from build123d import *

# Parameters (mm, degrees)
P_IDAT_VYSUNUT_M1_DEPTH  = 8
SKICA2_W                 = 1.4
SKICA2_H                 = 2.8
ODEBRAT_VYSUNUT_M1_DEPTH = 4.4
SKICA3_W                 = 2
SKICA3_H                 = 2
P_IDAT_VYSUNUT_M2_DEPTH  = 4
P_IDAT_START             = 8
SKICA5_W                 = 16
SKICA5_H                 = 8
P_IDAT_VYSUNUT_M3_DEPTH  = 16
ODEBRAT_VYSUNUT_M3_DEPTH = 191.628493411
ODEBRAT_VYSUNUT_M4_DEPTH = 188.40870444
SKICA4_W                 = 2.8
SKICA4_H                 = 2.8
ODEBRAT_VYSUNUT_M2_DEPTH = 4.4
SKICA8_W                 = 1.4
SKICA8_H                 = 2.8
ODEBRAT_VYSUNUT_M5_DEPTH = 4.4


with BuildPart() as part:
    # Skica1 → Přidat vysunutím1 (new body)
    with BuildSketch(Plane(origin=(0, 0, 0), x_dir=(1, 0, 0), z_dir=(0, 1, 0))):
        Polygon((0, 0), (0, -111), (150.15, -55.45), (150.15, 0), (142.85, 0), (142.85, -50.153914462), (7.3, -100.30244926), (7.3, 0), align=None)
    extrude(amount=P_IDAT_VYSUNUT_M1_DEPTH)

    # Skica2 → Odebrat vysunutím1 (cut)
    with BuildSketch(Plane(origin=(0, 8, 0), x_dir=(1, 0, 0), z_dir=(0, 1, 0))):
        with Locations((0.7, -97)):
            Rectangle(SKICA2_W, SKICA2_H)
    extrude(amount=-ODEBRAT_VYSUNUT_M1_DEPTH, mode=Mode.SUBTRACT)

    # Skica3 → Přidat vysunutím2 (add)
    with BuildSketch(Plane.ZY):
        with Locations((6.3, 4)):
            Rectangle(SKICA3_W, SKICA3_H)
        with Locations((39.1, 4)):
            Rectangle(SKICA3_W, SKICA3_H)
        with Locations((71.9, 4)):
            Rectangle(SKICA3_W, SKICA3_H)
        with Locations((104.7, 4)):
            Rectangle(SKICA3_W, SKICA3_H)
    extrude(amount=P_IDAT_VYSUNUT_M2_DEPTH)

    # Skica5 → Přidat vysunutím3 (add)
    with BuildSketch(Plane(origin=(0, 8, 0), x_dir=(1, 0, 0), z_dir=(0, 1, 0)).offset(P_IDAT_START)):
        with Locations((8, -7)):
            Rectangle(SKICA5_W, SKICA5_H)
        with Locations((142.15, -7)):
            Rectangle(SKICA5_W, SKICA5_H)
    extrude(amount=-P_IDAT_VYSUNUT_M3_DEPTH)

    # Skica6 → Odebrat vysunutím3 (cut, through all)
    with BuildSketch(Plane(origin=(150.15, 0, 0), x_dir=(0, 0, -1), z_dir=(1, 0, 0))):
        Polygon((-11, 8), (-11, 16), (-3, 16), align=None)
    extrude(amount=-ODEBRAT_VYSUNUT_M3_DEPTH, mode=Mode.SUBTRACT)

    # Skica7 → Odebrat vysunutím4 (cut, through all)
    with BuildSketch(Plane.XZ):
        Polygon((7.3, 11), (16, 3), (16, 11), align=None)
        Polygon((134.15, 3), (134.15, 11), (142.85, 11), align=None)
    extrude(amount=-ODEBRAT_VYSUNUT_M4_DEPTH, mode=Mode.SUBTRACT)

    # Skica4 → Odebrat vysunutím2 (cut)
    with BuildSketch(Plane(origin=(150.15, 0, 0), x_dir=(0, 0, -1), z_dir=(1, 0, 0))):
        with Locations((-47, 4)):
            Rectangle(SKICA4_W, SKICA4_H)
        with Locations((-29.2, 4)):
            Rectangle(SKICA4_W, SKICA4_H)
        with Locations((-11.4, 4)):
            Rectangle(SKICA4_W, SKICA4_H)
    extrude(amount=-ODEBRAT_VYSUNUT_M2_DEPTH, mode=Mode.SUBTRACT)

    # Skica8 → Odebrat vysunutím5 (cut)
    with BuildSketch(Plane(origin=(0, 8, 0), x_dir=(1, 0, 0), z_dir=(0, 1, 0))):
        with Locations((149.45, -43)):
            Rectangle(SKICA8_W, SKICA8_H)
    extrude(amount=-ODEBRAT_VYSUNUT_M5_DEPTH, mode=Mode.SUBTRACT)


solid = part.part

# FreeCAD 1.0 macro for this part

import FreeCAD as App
import Part
import Sketcher

doc = App.newDocument("Part")
body = doc.addObject("PartDesign::Body", "Body")

sketch1 = body.newObject("Sketcher::SketchObject", "Sketch")
sketch1.AttachmentSupport = (doc.getObject("XZ_Plane"), [""])
sketch1.MapMode = "FlatFace"
sketch1.addGeometry(Part.LineSegment(App.Vector(0, 0, 0), App.Vector(0, 111, 0)), False)
sketch1.addGeometry(Part.LineSegment(App.Vector(0, 111, 0), App.Vector(150, 55, 0)), False)
sketch1.addGeometry(Part.LineSegment(App.Vector(150, 55, 0), App.Vector(150, 0, 0)), False)
sketch1.addGeometry(Part.LineSegment(App.Vector(150, 0, 0), App.Vector(143, 0, 0)), False)
sketch1.addGeometry(Part.LineSegment(App.Vector(143, 0, 0), App.Vector(143, 50, 0)), False)
sketch1.addGeometry(Part.LineSegment(App.Vector(143, 50, 0), App.Vector(7, 100, 0)), False)
sketch1.addGeometry(Part.LineSegment(App.Vector(7, 100, 0), App.Vector(7, 0, 0)), False)
sketch1.addGeometry(Part.LineSegment(App.Vector(7, 0, 0), App.Vector(0, 0, 0)), False)
sketch1.addConstraint(Sketcher.Constraint("Coincident", 0, 2, 1, 1))
sketch1.addConstraint(Sketcher.Constraint("Coincident", 1, 2, 2, 1))
sketch1.addConstraint(Sketcher.Constraint("Coincident", 2, 2, 3, 1))
sketch1.addConstraint(Sketcher.Constraint("Coincident", 3, 2, 4, 1))
sketch1.addConstraint(Sketcher.Constraint("Coincident", 4, 2, 5, 1))
sketch1.addConstraint(Sketcher.Constraint("Coincident", 5, 2, 6, 1))
sketch1.addConstraint(Sketcher.Constraint("Coincident", 6, 2, 7, 1))
sketch1.addConstraint(Sketcher.Constraint("Coincident", 7, 2, 0, 1))
sketch1.addConstraint(Sketcher.Constraint("Vertical", 0))
sketch1.addConstraint(Sketcher.Constraint("Vertical", 2))
sketch1.addConstraint(Sketcher.Constraint("Horizontal", 3))
sketch1.addConstraint(Sketcher.Constraint("Vertical", 4))
sketch1.addConstraint(Sketcher.Constraint("Vertical", 6))
sketch1.addConstraint(Sketcher.Constraint("Horizontal", 7))
sketch1.addConstraint(Sketcher.Constraint("Coincident", 7, 2, -1, 1))
sketch1.addConstraint(Sketcher.Constraint("PointOnObject", 2, 2, -1))
sketch1.addConstraint(Sketcher.Constraint("Parallel", 1, 5))
sketch1.addConstraint(Sketcher.Constraint("Equal", 3, 7))
sketch1.addConstraint(Sketcher.Constraint("DistanceY", 0, 1, 0, 2, 111.0))
sketch1.addConstraint(Sketcher.Constraint("DistanceX", 3, 2, 3, 1, 7.3))
sketch1.addConstraint(Sketcher.Constraint("DistanceY", 2, 2, 2, 1, 55.45))
sketch1.addConstraint(Sketcher.Constraint("DistanceX", -1, 1, 1, 2, 150.15))
sketch1.addConstraint(Sketcher.Constraint("DistanceY", 6, 2, 6, 1, 100.302449))
pad1 = body.newObject("PartDesign::Pad", "Pad")
pad1.Profile = sketch1
pad1.Length = 8
pad1.Reversed = True

sketch2 = body.newObject("Sketcher::SketchObject", "Sketch001")
sketch2.AttachmentSupport = (doc.getObject("XZ_Plane"), [""])
sketch2.MapMode = "FlatFace"
sketch2.AttachmentOffset = App.Placement(App.Vector(0, 0, -8), App.Rotation())
sketch2.addGeometry(Part.LineSegment(App.Vector(0, 95.6, 0), App.Vector(0, 98.4, 0)), False)
sketch2.addGeometry(Part.LineSegment(App.Vector(0, 98.4, 0), App.Vector(1.4, 98.4, 0)), False)
sketch2.addGeometry(Part.LineSegment(App.Vector(1.4, 98.4, 0), App.Vector(1.4, 95.6, 0)), False)
sketch2.addGeometry(Part.LineSegment(App.Vector(1.4, 95.6, 0), App.Vector(0, 95.6, 0)), False)
sketch2.addConstraint(Sketcher.Constraint("Coincident", 0, 2, 1, 1))
sketch2.addConstraint(Sketcher.Constraint("Coincident", 1, 2, 2, 1))
sketch2.addConstraint(Sketcher.Constraint("Coincident", 2, 2, 3, 1))
sketch2.addConstraint(Sketcher.Constraint("Coincident", 3, 2, 0, 1))
sketch2.addConstraint(Sketcher.Constraint("Vertical", 0))
sketch2.addConstraint(Sketcher.Constraint("Horizontal", 1))
sketch2.addConstraint(Sketcher.Constraint("Vertical", 2))
sketch2.addConstraint(Sketcher.Constraint("Horizontal", 3))
sketch2.addConstraint(Sketcher.Constraint("PointOnObject", 0, 2, -2))
sketch2.addConstraint(Sketcher.Constraint("DistanceX", 1, 1, 1, 2, 1.4))
sketch2.addConstraint(Sketcher.Constraint("DistanceY", 0, 1, 0, 2, 2.8))
sketch2.addConstraint(Sketcher.Constraint("DistanceY", -1, 1, 0, 2, 98.4))
pocket1 = body.newObject("PartDesign::Pocket", "Pocket")
pocket1.Profile = sketch2
pocket1.Length = 4.4
pocket1.Reversed = True

sketch3 = body.newObject("Sketcher::SketchObject", "Sketch002")
sketch3.AttachmentSupport = (doc.getObject("YZ_Plane"), [""])
sketch3.MapMode = "FlatFace"
sketch3.addGeometry(Part.LineSegment(App.Vector(5, 5.3, 0), App.Vector(3, 5.3, 0)), False)
sketch3.addGeometry(Part.LineSegment(App.Vector(3, 5.3, 0), App.Vector(3, 7.3, 0)), False)
sketch3.addGeometry(Part.LineSegment(App.Vector(3, 7.3, 0), App.Vector(5, 7.3, 0)), False)
sketch3.addGeometry(Part.LineSegment(App.Vector(5, 7.3, 0), App.Vector(5, 5.3, 0)), False)
sketch3.addGeometry(Part.LineSegment(App.Vector(5, 38.1, 0), App.Vector(3, 38.1, 0)), False)
sketch3.addGeometry(Part.LineSegment(App.Vector(3, 38.1, 0), App.Vector(3, 40.1, 0)), False)
sketch3.addGeometry(Part.LineSegment(App.Vector(3, 40.1, 0), App.Vector(5, 40.1, 0)), False)
sketch3.addGeometry(Part.LineSegment(App.Vector(5, 40.1, 0), App.Vector(5, 38.1, 0)), False)
sketch3.addGeometry(Part.LineSegment(App.Vector(5, 70.9, 0), App.Vector(3, 70.9, 0)), False)
sketch3.addGeometry(Part.LineSegment(App.Vector(3, 70.9, 0), App.Vector(3, 72.9, 0)), False)
sketch3.addGeometry(Part.LineSegment(App.Vector(3, 72.9, 0), App.Vector(5, 72.9, 0)), False)
sketch3.addGeometry(Part.LineSegment(App.Vector(5, 72.9, 0), App.Vector(5, 70.9, 0)), False)
sketch3.addGeometry(Part.LineSegment(App.Vector(5, 103.7, 0), App.Vector(3, 103.7, 0)), False)
sketch3.addGeometry(Part.LineSegment(App.Vector(3, 103.7, 0), App.Vector(3, 105.7, 0)), False)
sketch3.addGeometry(Part.LineSegment(App.Vector(3, 105.7, 0), App.Vector(5, 105.7, 0)), False)
sketch3.addGeometry(Part.LineSegment(App.Vector(5, 105.7, 0), App.Vector(5, 103.7, 0)), False)
sketch3.addConstraint(Sketcher.Constraint("Coincident", 0, 2, 1, 1))
sketch3.addConstraint(Sketcher.Constraint("Coincident", 1, 2, 2, 1))
sketch3.addConstraint(Sketcher.Constraint("Coincident", 2, 2, 3, 1))
sketch3.addConstraint(Sketcher.Constraint("Coincident", 3, 2, 0, 1))
sketch3.addConstraint(Sketcher.Constraint("Coincident", 4, 2, 5, 1))
sketch3.addConstraint(Sketcher.Constraint("Coincident", 5, 2, 6, 1))
sketch3.addConstraint(Sketcher.Constraint("Coincident", 6, 2, 7, 1))
sketch3.addConstraint(Sketcher.Constraint("Coincident", 7, 2, 4, 1))
sketch3.addConstraint(Sketcher.Constraint("Coincident", 8, 2, 9, 1))
sketch3.addConstraint(Sketcher.Constraint("Coincident", 9, 2, 10, 1))
sketch3.addConstraint(Sketcher.Constraint("Coincident", 10, 2, 11, 1))
sketch3.addConstraint(Sketcher.Constraint("Coincident", 11, 2, 8, 1))
sketch3.addConstraint(Sketcher.Constraint("Coincident", 12, 2, 13, 1))
sketch3.addConstraint(Sketcher.Constraint("Coincident", 13, 2, 14, 1))
sketch3.addConstraint(Sketcher.Constraint("Coincident", 14, 2, 15, 1))
sketch3.addConstraint(Sketcher.Constraint("Coincident", 15, 2, 12, 1))
sketch3.addConstraint(Sketcher.Constraint("Horizontal", 0))
sketch3.addConstraint(Sketcher.Constraint("Vertical", 1))
sketch3.addConstraint(Sketcher.Constraint("Horizontal", 2))
sketch3.addConstraint(Sketcher.Constraint("Vertical", 3))
sketch3.addConstraint(Sketcher.Constraint("Horizontal", 4))
sketch3.addConstraint(Sketcher.Constraint("Vertical", 5))
sketch3.addConstraint(Sketcher.Constraint("Horizontal", 6))
sketch3.addConstraint(Sketcher.Constraint("Vertical", 7))
sketch3.addConstraint(Sketcher.Constraint("Horizontal", 8))
sketch3.addConstraint(Sketcher.Constraint("Vertical", 9))
sketch3.addConstraint(Sketcher.Constraint("Horizontal", 10))
sketch3.addConstraint(Sketcher.Constraint("Vertical", 11))
sketch3.addConstraint(Sketcher.Constraint("Horizontal", 12))
sketch3.addConstraint(Sketcher.Constraint("Vertical", 13))
sketch3.addConstraint(Sketcher.Constraint("Horizontal", 14))
sketch3.addConstraint(Sketcher.Constraint("Vertical", 15))
sketch3.addConstraint(Sketcher.Constraint("Vertical", 1, 2, 4, 2))
sketch3.addConstraint(Sketcher.Constraint("Vertical", 3, 2, 6, 2))
sketch3.addConstraint(Sketcher.Constraint("Vertical", 5, 2, 8, 2))
sketch3.addConstraint(Sketcher.Constraint("Vertical", 7, 2, 10, 2))
sketch3.addConstraint(Sketcher.Constraint("Vertical", 9, 2, 12, 2))
sketch3.addConstraint(Sketcher.Constraint("Vertical", 11, 2, 14, 2))
sketch3.addConstraint(Sketcher.Constraint("Equal", 14, 1))
sketch3.addConstraint(Sketcher.Constraint("Equal", 3, 5))
sketch3.addConstraint(Sketcher.Constraint("Equal", 7, 9))
sketch3.addConstraint(Sketcher.Constraint("Equal", 11, 13))
sketch3.addConstraint(Sketcher.Constraint("DistanceX", 0, 2, 0, 1, 2.0))
sketch3.addConstraint(Sketcher.Constraint("DistanceX", -1, 1, 0, 2, 3.0))
sketch3.addConstraint(Sketcher.Constraint("DistanceY", -1, 1, 0, 2, 5.3))
sketch3.addConstraint(Sketcher.Constraint("DistanceY", -1, 1, 4, 2, 38.1))
sketch3.addConstraint(Sketcher.Constraint("DistanceY", -1, 1, 8, 2, 70.9))
sketch3.addConstraint(Sketcher.Constraint("DistanceY", -1, 1, 12, 2, 103.7))
pad2 = body.newObject("PartDesign::Pad", "Pad001")
pad2.Profile = sketch3
pad2.Length = 4
pad2.Reversed = True

sketch4 = body.newObject("Sketcher::SketchObject", "Sketch003")
sketch4.AttachmentSupport = (doc.getObject("XZ_Plane"), [""])
sketch4.MapMode = "FlatFace"
sketch4.AttachmentOffset = App.Placement(App.Vector(0, 0, -16), App.Rotation())
sketch4.addGeometry(Part.LineSegment(App.Vector(0, 3, 0), App.Vector(0, 11, 0)), False)
sketch4.addGeometry(Part.LineSegment(App.Vector(0, 11, 0), App.Vector(16, 11, 0)), False)
sketch4.addGeometry(Part.LineSegment(App.Vector(16, 11, 0), App.Vector(16, 3, 0)), False)
sketch4.addGeometry(Part.LineSegment(App.Vector(16, 3, 0), App.Vector(0, 3, 0)), False)
sketch4.addGeometry(Part.LineSegment(App.Vector(134, 3, 0), App.Vector(134, 11, 0)), False)
sketch4.addGeometry(Part.LineSegment(App.Vector(134, 11, 0), App.Vector(150, 11, 0)), False)
sketch4.addGeometry(Part.LineSegment(App.Vector(150, 11, 0), App.Vector(150, 3, 0)), False)
sketch4.addGeometry(Part.LineSegment(App.Vector(150, 3, 0), App.Vector(134, 3, 0)), False)
sketch4.addConstraint(Sketcher.Constraint("Coincident", 0, 2, 1, 1))
sketch4.addConstraint(Sketcher.Constraint("Coincident", 1, 2, 2, 1))
sketch4.addConstraint(Sketcher.Constraint("Coincident", 2, 2, 3, 1))
sketch4.addConstraint(Sketcher.Constraint("Coincident", 3, 2, 0, 1))
sketch4.addConstraint(Sketcher.Constraint("Coincident", 4, 2, 5, 1))
sketch4.addConstraint(Sketcher.Constraint("Coincident", 5, 2, 6, 1))
sketch4.addConstraint(Sketcher.Constraint("Coincident", 6, 2, 7, 1))
sketch4.addConstraint(Sketcher.Constraint("Coincident", 7, 2, 4, 1))
sketch4.addConstraint(Sketcher.Constraint("Vertical", 0))
sketch4.addConstraint(Sketcher.Constraint("Horizontal", 1))
sketch4.addConstraint(Sketcher.Constraint("Vertical", 2))
sketch4.addConstraint(Sketcher.Constraint("Horizontal", 3))
sketch4.addConstraint(Sketcher.Constraint("Vertical", 4))
sketch4.addConstraint(Sketcher.Constraint("Horizontal", 5))
sketch4.addConstraint(Sketcher.Constraint("Vertical", 6))
sketch4.addConstraint(Sketcher.Constraint("Horizontal", 7))
sketch4.addConstraint(Sketcher.Constraint("PointOnObject", 0, 2, -2))
sketch4.addConstraint(Sketcher.Constraint("Horizontal", 1, 2, 4, 2))
sketch4.addConstraint(Sketcher.Constraint("Horizontal", 3, 2, 6, 2))
sketch4.addConstraint(Sketcher.Constraint("Equal", 3, 5))
sketch4.addConstraint(Sketcher.Constraint("DistanceX", 1, 1, 1, 2, 16.0))
sketch4.addConstraint(Sketcher.Constraint("DistanceY", 0, 1, 0, 2, 8.0))
sketch4.addConstraint(Sketcher.Constraint("DistanceY", -1, 1, 0, 2, 11.0))
sketch4.addConstraint(Sketcher.Constraint("DistanceX", -1, 1, 4, 2, 134.15))
pad3 = body.newObject("PartDesign::Pad", "Pad002")
pad3.Profile = sketch4
pad3.Length = 16

sketch5 = body.newObject("Sketcher::SketchObject", "Sketch004")
sketch5.AttachmentSupport = (doc.getObject("YZ_Plane"), [""])
sketch5.MapMode = "FlatFace"
sketch5.AttachmentOffset = App.Placement(App.Vector(0, 0, 150.15), App.Rotation())
sketch5.addGeometry(Part.LineSegment(App.Vector(16, 11, 0), App.Vector(8, 11, 0)), False)
sketch5.addGeometry(Part.LineSegment(App.Vector(8, 11, 0), App.Vector(16, 3, 0)), False)
sketch5.addGeometry(Part.LineSegment(App.Vector(16, 3, 0), App.Vector(16, 11, 0)), False)
sketch5.addConstraint(Sketcher.Constraint("Coincident", 0, 2, 1, 1))
sketch5.addConstraint(Sketcher.Constraint("Coincident", 1, 2, 2, 1))
sketch5.addConstraint(Sketcher.Constraint("Coincident", 2, 2, 0, 1))
sketch5.addConstraint(Sketcher.Constraint("Horizontal", 0))
sketch5.addConstraint(Sketcher.Constraint("Vertical", 2))
sketch5.addConstraint(Sketcher.Constraint("Equal", 0, 2))
sketch5.addConstraint(Sketcher.Constraint("DistanceX", 0, 2, 0, 1, 8.0))
sketch5.addConstraint(Sketcher.Constraint("DistanceX", -1, 1, 0, 2, 8.0))
sketch5.addConstraint(Sketcher.Constraint("DistanceY", -1, 1, 0, 2, 11.0))
pocket2 = body.newObject("PartDesign::Pocket", "Pocket001")
pocket2.Profile = sketch5
pocket2.Type = "ThroughAll"

sketch6 = body.newObject("Sketcher::SketchObject", "Sketch005")
sketch6.AttachmentSupport = (doc.getObject("XZ_Plane"), [""])
sketch6.MapMode = "FlatFace"
sketch6.addGeometry(Part.LineSegment(App.Vector(7, 11, 0), App.Vector(16, 3, 0)), False)
sketch6.addGeometry(Part.LineSegment(App.Vector(16, 3, 0), App.Vector(16, 11, 0)), False)
sketch6.addGeometry(Part.LineSegment(App.Vector(16, 11, 0), App.Vector(7, 11, 0)), False)
sketch6.addGeometry(Part.LineSegment(App.Vector(134, 11, 0), App.Vector(134, 3, 0)), False)
sketch6.addGeometry(Part.LineSegment(App.Vector(134, 3, 0), App.Vector(143, 11, 0)), False)
sketch6.addGeometry(Part.LineSegment(App.Vector(143, 11, 0), App.Vector(134, 11, 0)), False)
sketch6.addConstraint(Sketcher.Constraint("Coincident", 0, 2, 1, 1))
sketch6.addConstraint(Sketcher.Constraint("Coincident", 1, 2, 2, 1))
sketch6.addConstraint(Sketcher.Constraint("Coincident", 2, 2, 0, 1))
sketch6.addConstraint(Sketcher.Constraint("Coincident", 3, 2, 4, 1))
sketch6.addConstraint(Sketcher.Constraint("Coincident", 4, 2, 5, 1))
sketch6.addConstraint(Sketcher.Constraint("Coincident", 5, 2, 3, 1))
sketch6.addConstraint(Sketcher.Constraint("Vertical", 1))
sketch6.addConstraint(Sketcher.Constraint("Horizontal", 2))
sketch6.addConstraint(Sketcher.Constraint("Vertical", 3))
sketch6.addConstraint(Sketcher.Constraint("Horizontal", 5))
sketch6.addConstraint(Sketcher.Constraint("Horizontal", 0, 2, 3, 2))
sketch6.addConstraint(Sketcher.Constraint("Horizontal", 2, 2, 4, 2))
sketch6.addConstraint(Sketcher.Constraint("Equal", 2, 5))
sketch6.addConstraint(Sketcher.Constraint("DistanceY", 1, 1, 1, 2, 8.0))
sketch6.addConstraint(Sketcher.Constraint("DistanceX", 2, 2, 2, 1, 8.7))
sketch6.addConstraint(Sketcher.Constraint("DistanceX", -1, 1, 0, 2, 16.0))
sketch6.addConstraint(Sketcher.Constraint("DistanceY", -1, 1, 0, 2, 3.0))
sketch6.addConstraint(Sketcher.Constraint("DistanceX", -1, 1, 3, 2, 134.15))
pocket3 = body.newObject("PartDesign::Pocket", "Pocket002")
pocket3.Profile = sketch6
pocket3.Type = "ThroughAll"

sketch7 = body.newObject("Sketcher::SketchObject", "Sketch006")
sketch7.AttachmentSupport = (doc.getObject("YZ_Plane"), [""])
sketch7.MapMode = "FlatFace"
sketch7.AttachmentOffset = App.Placement(App.Vector(0, 0, 150.15), App.Rotation())
sketch7.addGeometry(Part.LineSegment(App.Vector(5.4, 48.4, 0), App.Vector(2.6, 48.4, 0)), False)
sketch7.addGeometry(Part.LineSegment(App.Vector(2.6, 48.4, 0), App.Vector(2.6, 45.6, 0)), False)
sketch7.addGeometry(Part.LineSegment(App.Vector(2.6, 45.6, 0), App.Vector(5.4, 45.6, 0)), False)
sketch7.addGeometry(Part.LineSegment(App.Vector(5.4, 45.6, 0), App.Vector(5.4, 48.4, 0)), False)
sketch7.addGeometry(Part.LineSegment(App.Vector(5.4, 30.6, 0), App.Vector(2.6, 30.6, 0)), False)
sketch7.addGeometry(Part.LineSegment(App.Vector(2.6, 30.6, 0), App.Vector(2.6, 27.8, 0)), False)
sketch7.addGeometry(Part.LineSegment(App.Vector(2.6, 27.8, 0), App.Vector(5.4, 27.8, 0)), False)
sketch7.addGeometry(Part.LineSegment(App.Vector(5.4, 27.8, 0), App.Vector(5.4, 30.6, 0)), False)
sketch7.addGeometry(Part.LineSegment(App.Vector(5.4, 12.8, 0), App.Vector(2.6, 12.8, 0)), False)
sketch7.addGeometry(Part.LineSegment(App.Vector(2.6, 12.8, 0), App.Vector(2.6, 10, 0)), False)
sketch7.addGeometry(Part.LineSegment(App.Vector(2.6, 10, 0), App.Vector(5.4, 10, 0)), False)
sketch7.addGeometry(Part.LineSegment(App.Vector(5.4, 10, 0), App.Vector(5.4, 12.8, 0)), False)
sketch7.addConstraint(Sketcher.Constraint("Coincident", 0, 2, 1, 1))
sketch7.addConstraint(Sketcher.Constraint("Coincident", 1, 2, 2, 1))
sketch7.addConstraint(Sketcher.Constraint("Coincident", 2, 2, 3, 1))
sketch7.addConstraint(Sketcher.Constraint("Coincident", 3, 2, 0, 1))
sketch7.addConstraint(Sketcher.Constraint("Coincident", 4, 2, 5, 1))
sketch7.addConstraint(Sketcher.Constraint("Coincident", 5, 2, 6, 1))
sketch7.addConstraint(Sketcher.Constraint("Coincident", 6, 2, 7, 1))
sketch7.addConstraint(Sketcher.Constraint("Coincident", 7, 2, 4, 1))
sketch7.addConstraint(Sketcher.Constraint("Coincident", 8, 2, 9, 1))
sketch7.addConstraint(Sketcher.Constraint("Coincident", 9, 2, 10, 1))
sketch7.addConstraint(Sketcher.Constraint("Coincident", 10, 2, 11, 1))
sketch7.addConstraint(Sketcher.Constraint("Coincident", 11, 2, 8, 1))
sketch7.addConstraint(Sketcher.Constraint("Horizontal", 0))
sketch7.addConstraint(Sketcher.Constraint("Vertical", 1))
sketch7.addConstraint(Sketcher.Constraint("Horizontal", 2))
sketch7.addConstraint(Sketcher.Constraint("Vertical", 3))
sketch7.addConstraint(Sketcher.Constraint("Horizontal", 4))
sketch7.addConstraint(Sketcher.Constraint("Vertical", 5))
sketch7.addConstraint(Sketcher.Constraint("Horizontal", 6))
sketch7.addConstraint(Sketcher.Constraint("Vertical", 7))
sketch7.addConstraint(Sketcher.Constraint("Horizontal", 8))
sketch7.addConstraint(Sketcher.Constraint("Vertical", 9))
sketch7.addConstraint(Sketcher.Constraint("Horizontal", 10))
sketch7.addConstraint(Sketcher.Constraint("Vertical", 11))
sketch7.addConstraint(Sketcher.Constraint("Vertical", 1, 2, 4, 2))
sketch7.addConstraint(Sketcher.Constraint("Vertical", 3, 2, 6, 2))
sketch7.addConstraint(Sketcher.Constraint("Vertical", 5, 2, 8, 2))
sketch7.addConstraint(Sketcher.Constraint("Vertical", 7, 2, 10, 2))
sketch7.addConstraint(Sketcher.Constraint("Equal", 10, 1))
sketch7.addConstraint(Sketcher.Constraint("Equal", 3, 5))
sketch7.addConstraint(Sketcher.Constraint("Equal", 7, 9))
sketch7.addConstraint(Sketcher.Constraint("DistanceX", 0, 2, 0, 1, 2.8))
sketch7.addConstraint(Sketcher.Constraint("DistanceY", -1, 1, 9, 2, 10.0))
sketch7.addConstraint(Sketcher.Constraint("DistanceY", 4, 2, 1, 2, 15.0))
sketch7.addConstraint(Sketcher.Constraint("DistanceY", 8, 2, 5, 2, 15.0))
sketch7.addConstraint(Sketcher.Constraint("DistanceX", -1, 1, 0, 2, 2.6))
pocket4 = body.newObject("PartDesign::Pocket", "Pocket003")
pocket4.Profile = sketch7
pocket4.Length = 4.4

sketch8 = body.newObject("Sketcher::SketchObject", "Sketch007")
sketch8.AttachmentSupport = (doc.getObject("XZ_Plane"), [""])
sketch8.MapMode = "FlatFace"
sketch8.AttachmentOffset = App.Placement(App.Vector(0, 0, -8), App.Rotation())
sketch8.addGeometry(Part.LineSegment(App.Vector(148.8, 41.6, 0), App.Vector(148.8, 44.4, 0)), False)
sketch8.addGeometry(Part.LineSegment(App.Vector(148.8, 44.4, 0), App.Vector(150.2, 44.4, 0)), False)
sketch8.addGeometry(Part.LineSegment(App.Vector(150.2, 44.4, 0), App.Vector(150.2, 41.6, 0)), False)
sketch8.addGeometry(Part.LineSegment(App.Vector(150.2, 41.6, 0), App.Vector(148.8, 41.6, 0)), False)
sketch8.addConstraint(Sketcher.Constraint("Coincident", 0, 2, 1, 1))
sketch8.addConstraint(Sketcher.Constraint("Coincident", 1, 2, 2, 1))
sketch8.addConstraint(Sketcher.Constraint("Coincident", 2, 2, 3, 1))
sketch8.addConstraint(Sketcher.Constraint("Coincident", 3, 2, 0, 1))
sketch8.addConstraint(Sketcher.Constraint("Vertical", 0))
sketch8.addConstraint(Sketcher.Constraint("Horizontal", 1))
sketch8.addConstraint(Sketcher.Constraint("Vertical", 2))
sketch8.addConstraint(Sketcher.Constraint("Horizontal", 3))
sketch8.addConstraint(Sketcher.Constraint("DistanceX", 1, 1, 1, 2, 1.4))
sketch8.addConstraint(Sketcher.Constraint("DistanceY", 0, 1, 0, 2, 2.8))
sketch8.addConstraint(Sketcher.Constraint("DistanceY", -1, 1, 0, 2, 44.4))
sketch8.addConstraint(Sketcher.Constraint("DistanceX", -1, 1, 0, 2, 148.75))
pocket5 = body.newObject("PartDesign::Pocket", "Pocket004")
pocket5.Profile = sketch8
pocket5.Length = 4.4
pocket5.Reversed = True

doc.recompute()
